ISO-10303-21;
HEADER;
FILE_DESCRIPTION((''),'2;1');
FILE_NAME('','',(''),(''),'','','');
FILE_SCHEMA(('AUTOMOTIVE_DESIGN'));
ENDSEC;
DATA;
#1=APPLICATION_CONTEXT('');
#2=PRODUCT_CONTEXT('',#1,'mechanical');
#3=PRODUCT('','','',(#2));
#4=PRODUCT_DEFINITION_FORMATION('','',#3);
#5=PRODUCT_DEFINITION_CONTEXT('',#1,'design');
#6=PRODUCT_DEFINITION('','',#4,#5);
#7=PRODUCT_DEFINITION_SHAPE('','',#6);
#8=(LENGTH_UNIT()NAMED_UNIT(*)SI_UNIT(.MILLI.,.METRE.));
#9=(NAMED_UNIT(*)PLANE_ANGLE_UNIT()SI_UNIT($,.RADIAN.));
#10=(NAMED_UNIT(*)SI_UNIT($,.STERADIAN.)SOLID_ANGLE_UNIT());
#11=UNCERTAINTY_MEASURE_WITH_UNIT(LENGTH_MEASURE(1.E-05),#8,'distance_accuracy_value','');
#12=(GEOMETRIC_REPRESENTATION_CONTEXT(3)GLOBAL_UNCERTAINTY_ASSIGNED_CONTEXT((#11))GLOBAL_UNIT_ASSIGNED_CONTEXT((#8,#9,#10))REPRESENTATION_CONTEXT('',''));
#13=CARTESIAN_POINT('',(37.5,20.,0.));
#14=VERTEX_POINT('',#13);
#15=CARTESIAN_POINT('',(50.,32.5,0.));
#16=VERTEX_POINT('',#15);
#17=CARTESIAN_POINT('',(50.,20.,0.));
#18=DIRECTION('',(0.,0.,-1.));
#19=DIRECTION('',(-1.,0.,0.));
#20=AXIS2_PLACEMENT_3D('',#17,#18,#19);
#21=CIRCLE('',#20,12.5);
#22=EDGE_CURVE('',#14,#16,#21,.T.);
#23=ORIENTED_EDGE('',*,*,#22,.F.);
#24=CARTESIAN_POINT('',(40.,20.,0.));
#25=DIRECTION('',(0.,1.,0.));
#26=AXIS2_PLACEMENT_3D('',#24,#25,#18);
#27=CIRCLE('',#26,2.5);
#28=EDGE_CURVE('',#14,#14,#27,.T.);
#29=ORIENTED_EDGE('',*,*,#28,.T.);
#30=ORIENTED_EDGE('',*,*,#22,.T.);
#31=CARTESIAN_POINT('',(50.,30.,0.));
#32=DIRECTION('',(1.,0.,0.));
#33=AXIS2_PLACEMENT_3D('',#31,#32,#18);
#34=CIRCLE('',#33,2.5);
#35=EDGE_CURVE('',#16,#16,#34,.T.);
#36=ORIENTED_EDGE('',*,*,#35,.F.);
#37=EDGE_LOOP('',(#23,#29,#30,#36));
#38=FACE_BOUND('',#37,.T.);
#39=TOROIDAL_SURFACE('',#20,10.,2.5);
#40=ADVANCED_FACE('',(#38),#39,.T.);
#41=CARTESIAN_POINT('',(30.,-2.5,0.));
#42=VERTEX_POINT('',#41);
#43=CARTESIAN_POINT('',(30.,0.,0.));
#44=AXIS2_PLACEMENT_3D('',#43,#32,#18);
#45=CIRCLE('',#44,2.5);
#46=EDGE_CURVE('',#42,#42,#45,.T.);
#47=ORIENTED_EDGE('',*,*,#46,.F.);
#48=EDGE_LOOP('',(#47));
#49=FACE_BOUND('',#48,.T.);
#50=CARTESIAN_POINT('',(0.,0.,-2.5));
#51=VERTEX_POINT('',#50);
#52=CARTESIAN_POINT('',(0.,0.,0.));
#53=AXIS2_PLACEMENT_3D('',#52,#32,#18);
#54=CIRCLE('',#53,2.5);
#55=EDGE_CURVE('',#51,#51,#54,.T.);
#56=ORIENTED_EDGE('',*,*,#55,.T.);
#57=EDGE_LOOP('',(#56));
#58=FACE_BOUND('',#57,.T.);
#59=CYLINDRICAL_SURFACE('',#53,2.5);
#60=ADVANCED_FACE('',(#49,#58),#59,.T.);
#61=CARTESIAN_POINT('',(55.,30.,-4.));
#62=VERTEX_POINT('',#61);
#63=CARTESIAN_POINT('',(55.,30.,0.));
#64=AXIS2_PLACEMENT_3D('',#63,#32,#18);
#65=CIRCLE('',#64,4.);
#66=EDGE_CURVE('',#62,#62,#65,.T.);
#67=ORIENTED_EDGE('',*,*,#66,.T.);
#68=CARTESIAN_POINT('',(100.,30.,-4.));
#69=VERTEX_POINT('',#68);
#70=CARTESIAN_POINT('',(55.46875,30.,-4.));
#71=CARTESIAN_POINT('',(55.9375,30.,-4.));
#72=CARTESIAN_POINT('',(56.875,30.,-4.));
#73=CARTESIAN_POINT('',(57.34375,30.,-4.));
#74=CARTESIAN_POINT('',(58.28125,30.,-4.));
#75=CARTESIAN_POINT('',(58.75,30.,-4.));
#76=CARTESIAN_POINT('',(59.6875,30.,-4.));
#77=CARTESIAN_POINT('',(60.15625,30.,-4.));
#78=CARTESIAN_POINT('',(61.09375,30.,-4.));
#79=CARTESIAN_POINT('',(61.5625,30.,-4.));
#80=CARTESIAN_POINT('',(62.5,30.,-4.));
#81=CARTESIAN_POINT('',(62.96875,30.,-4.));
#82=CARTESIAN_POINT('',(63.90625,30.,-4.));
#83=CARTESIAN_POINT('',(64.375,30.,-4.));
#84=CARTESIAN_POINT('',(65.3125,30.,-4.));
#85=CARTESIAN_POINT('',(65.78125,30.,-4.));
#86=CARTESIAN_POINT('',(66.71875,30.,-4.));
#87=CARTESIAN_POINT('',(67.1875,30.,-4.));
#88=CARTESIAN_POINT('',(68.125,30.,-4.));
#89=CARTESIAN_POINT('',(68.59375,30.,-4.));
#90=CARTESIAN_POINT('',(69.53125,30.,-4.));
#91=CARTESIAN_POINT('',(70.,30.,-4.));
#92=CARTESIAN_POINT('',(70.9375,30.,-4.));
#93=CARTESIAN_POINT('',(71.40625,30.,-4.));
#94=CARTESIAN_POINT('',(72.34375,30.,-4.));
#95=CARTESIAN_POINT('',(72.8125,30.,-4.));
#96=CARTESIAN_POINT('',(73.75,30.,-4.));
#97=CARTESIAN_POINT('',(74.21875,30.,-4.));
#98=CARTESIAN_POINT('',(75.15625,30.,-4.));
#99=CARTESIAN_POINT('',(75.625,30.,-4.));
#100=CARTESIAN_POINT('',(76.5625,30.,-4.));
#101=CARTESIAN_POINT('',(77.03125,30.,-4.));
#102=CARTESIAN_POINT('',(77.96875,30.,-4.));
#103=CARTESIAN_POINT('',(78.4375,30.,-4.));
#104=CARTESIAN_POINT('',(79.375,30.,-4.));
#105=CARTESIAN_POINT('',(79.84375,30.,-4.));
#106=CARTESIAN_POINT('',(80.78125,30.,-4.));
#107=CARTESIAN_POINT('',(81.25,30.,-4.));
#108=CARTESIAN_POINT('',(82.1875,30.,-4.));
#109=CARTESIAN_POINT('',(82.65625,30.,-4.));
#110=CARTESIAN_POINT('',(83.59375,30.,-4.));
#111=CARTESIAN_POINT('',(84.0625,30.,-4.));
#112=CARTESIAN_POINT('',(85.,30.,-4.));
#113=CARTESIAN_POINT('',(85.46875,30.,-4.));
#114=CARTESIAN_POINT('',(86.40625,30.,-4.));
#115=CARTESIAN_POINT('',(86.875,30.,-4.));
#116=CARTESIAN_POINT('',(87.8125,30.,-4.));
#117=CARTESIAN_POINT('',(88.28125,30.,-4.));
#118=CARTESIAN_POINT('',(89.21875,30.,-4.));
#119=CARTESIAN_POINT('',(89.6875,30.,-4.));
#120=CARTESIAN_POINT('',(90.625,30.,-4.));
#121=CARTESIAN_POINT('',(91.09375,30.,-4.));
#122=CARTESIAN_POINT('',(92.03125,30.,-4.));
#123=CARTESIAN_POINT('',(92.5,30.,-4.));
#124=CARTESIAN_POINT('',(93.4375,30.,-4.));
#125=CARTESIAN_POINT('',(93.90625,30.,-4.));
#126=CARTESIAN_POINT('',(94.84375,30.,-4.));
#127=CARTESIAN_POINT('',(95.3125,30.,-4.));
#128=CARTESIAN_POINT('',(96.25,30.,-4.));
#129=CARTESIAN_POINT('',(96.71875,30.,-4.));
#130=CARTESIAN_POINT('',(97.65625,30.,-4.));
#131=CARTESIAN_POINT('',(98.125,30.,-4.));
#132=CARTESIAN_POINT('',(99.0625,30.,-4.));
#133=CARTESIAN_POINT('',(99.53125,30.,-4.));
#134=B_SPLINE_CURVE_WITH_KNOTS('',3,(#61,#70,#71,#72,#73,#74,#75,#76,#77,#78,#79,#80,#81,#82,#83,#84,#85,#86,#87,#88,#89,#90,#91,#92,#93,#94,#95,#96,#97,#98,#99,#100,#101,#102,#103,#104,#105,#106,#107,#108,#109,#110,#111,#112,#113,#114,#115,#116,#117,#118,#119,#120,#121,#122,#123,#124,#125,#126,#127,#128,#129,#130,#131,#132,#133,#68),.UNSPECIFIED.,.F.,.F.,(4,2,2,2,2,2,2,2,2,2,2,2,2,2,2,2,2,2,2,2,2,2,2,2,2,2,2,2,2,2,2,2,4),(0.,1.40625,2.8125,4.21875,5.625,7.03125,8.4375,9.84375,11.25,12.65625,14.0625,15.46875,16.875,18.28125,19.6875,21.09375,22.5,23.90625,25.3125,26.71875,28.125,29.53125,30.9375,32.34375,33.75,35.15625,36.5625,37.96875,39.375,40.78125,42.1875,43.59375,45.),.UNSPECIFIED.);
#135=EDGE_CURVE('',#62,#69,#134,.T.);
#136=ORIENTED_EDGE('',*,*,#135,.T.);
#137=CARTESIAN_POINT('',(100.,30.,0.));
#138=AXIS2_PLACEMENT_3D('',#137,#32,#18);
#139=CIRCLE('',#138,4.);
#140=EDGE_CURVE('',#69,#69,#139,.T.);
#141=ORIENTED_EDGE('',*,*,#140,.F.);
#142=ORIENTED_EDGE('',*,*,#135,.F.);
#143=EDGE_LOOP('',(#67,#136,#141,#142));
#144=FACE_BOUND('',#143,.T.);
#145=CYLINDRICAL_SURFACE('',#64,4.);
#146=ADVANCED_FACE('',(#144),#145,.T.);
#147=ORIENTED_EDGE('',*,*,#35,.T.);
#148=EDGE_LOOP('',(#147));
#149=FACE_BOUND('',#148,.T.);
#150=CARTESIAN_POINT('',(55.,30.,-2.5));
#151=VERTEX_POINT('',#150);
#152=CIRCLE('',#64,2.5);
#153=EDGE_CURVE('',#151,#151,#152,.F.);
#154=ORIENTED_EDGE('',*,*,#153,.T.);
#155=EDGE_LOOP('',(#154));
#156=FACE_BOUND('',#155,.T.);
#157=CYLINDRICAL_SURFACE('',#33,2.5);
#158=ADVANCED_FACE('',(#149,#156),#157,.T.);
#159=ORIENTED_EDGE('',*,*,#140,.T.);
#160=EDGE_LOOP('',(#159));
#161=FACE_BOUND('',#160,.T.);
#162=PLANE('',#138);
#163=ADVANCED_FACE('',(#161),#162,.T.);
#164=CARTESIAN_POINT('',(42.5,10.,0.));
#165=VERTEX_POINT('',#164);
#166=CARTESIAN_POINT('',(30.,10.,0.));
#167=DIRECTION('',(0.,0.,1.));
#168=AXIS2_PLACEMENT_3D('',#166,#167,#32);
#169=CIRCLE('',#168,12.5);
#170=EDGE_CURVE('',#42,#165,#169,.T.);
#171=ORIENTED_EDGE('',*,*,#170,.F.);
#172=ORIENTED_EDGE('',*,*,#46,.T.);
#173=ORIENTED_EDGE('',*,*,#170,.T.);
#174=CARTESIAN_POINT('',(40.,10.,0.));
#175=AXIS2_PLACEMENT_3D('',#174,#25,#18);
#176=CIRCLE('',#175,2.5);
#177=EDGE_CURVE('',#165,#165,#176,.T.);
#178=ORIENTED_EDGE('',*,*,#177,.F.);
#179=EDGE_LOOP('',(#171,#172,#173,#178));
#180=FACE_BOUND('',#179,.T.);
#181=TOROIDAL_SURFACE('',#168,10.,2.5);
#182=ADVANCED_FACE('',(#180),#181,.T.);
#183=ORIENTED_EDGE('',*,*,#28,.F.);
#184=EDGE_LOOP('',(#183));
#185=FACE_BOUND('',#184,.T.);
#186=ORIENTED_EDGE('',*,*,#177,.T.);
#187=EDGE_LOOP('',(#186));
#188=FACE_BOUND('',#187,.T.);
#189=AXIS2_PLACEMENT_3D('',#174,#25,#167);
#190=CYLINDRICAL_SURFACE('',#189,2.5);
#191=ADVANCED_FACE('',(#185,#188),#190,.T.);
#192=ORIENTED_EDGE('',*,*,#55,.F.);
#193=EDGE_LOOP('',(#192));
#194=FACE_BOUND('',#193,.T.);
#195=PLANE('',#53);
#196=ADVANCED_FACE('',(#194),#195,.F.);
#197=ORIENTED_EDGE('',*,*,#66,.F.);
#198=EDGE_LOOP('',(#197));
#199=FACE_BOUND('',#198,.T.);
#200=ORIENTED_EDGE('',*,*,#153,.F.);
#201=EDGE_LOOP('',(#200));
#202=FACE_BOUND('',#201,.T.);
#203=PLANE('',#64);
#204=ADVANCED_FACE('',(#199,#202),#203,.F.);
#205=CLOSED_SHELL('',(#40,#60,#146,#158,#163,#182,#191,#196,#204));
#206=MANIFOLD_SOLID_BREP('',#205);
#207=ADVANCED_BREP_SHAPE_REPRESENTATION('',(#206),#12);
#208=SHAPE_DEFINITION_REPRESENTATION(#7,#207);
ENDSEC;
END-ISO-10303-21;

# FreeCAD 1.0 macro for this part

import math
import FreeCAD as App
import Part
import Sketcher

V = App.Vector
Q = App.Units.Quantity

doc = App.newDocument("Part")
body = doc.addObject("PartDesign::Body", "Body")

sketch1 = body.newObject("Sketcher::SketchObject", "Sketch")
sketch1.AttachmentSupport = (doc.getObject("YZ_Plane"), [""])
sketch1.MapMode = "FlatFace"
sketch1.AttachmentOffset = App.Placement(V(0, 0, 100), App.Rotation())
sketch1.addGeometry(Part.Circle(V(30, 0, 0), V(0, 0, 1), 2.5), False)
sketch1.addConstraint(Sketcher.Constraint("PointOnObject", 0, 3, -1))
sketch1.addConstraint(Sketcher.Constraint("Diameter", 0, Q("5 mm")))
sketch1.addConstraint(Sketcher.Constraint("DistanceX", -1, 1, 0, 3, Q("30 mm")))

sketch2 = body.newObject("Sketcher::SketchObject", "Sketch001")
sketch2.AttachmentSupport = (doc.getObject("XY_Plane"), [""])
sketch2.MapMode = "FlatFace"
sketch2.addGeometry(Part.LineSegment(V(0, 0, 0), V(30, 0, 0)), False)
sketch2.addGeometry(Part.ArcOfCircle(Part.Circle(V(30, 10, 0), V(0, 0, 1), 10), math.radians(-90), math.radians(0)), False)
sketch2.addGeometry(Part.LineSegment(V(40, 10, 0), V(40, 20, 0)), False)
sketch2.addGeometry(Part.ArcOfCircle(Part.Circle(V(50, 20, 0), V(0, 0, 1), 10), math.radians(90), math.radians(180)), False)
sketch2.addGeometry(Part.LineSegment(V(50, 30, 0), V(100, 30, 0)), False)
sketch2.addConstraint(Sketcher.Constraint("Tangent", 0, 2, 1, 1))
sketch2.addConstraint(Sketcher.Constraint("Tangent", 1, 2, 2, 1))
sketch2.addConstraint(Sketcher.Constraint("Tangent", 2, 2, 3, 2))
sketch2.addConstraint(Sketcher.Constraint("Tangent", 3, 1, 4, 1))
sketch2.addConstraint(Sketcher.Constraint("Horizontal", 0))
sketch2.addConstraint(Sketcher.Constraint("Vertical", 2))
sketch2.addConstraint(Sketcher.Constraint("Horizontal", 4))
sketch2.addConstraint(Sketcher.Constraint("Coincident", 0, 1, -1, 1))
sketch2.addConstraint(Sketcher.Constraint("Equal", 1, 3))
sketch2.addConstraint(Sketcher.Constraint("Radius", 1, Q("10 mm")))
sketch2.addConstraint(Sketcher.Constraint("DistanceX", 0, 1, 0, 2, Q("30 mm")))
sketch2.addConstraint(Sketcher.Constraint("DistanceX", 4, 1, 4, 2, Q("50 mm")))
sketch2.addConstraint(Sketcher.Constraint("DistanceY", 2, 1, 2, 2, Q("10 mm")))
doc.recompute()

additivepipe = body.newObject("PartDesign::AdditivePipe", "AdditivePipe")
additivepipe.Profile = sketch1
additivepipe.Spine = (sketch2, ["Edge1", "Edge2", "Edge3", "Edge4", "Edge5"])

sketch3 = body.newObject("Sketcher::SketchObject", "Sketch002")
sketch3.AttachmentSupport = (doc.getObject("YZ_Plane"), [""])
sketch3.MapMode = "FlatFace"
sketch3.AttachmentOffset = App.Placement(V(0, 0, 100), App.Rotation())
sketch3.addGeometry(Part.Circle(V(30, 0, 0), V(0, 0, 1), 4), False)
sketch3.addConstraint(Sketcher.Constraint("PointOnObject", 0, 3, -1))
sketch3.addConstraint(Sketcher.Constraint("Diameter", 0, Q("8 mm")))
sketch3.addConstraint(Sketcher.Constraint("DistanceX", -1, 1, 0, 3, Q("30 mm")))
pad1 = body.newObject("PartDesign::Pad", "Pad")
pad1.Profile = sketch3
pad1.Length = 45
pad1.Reversed = True

doc.recompute()
